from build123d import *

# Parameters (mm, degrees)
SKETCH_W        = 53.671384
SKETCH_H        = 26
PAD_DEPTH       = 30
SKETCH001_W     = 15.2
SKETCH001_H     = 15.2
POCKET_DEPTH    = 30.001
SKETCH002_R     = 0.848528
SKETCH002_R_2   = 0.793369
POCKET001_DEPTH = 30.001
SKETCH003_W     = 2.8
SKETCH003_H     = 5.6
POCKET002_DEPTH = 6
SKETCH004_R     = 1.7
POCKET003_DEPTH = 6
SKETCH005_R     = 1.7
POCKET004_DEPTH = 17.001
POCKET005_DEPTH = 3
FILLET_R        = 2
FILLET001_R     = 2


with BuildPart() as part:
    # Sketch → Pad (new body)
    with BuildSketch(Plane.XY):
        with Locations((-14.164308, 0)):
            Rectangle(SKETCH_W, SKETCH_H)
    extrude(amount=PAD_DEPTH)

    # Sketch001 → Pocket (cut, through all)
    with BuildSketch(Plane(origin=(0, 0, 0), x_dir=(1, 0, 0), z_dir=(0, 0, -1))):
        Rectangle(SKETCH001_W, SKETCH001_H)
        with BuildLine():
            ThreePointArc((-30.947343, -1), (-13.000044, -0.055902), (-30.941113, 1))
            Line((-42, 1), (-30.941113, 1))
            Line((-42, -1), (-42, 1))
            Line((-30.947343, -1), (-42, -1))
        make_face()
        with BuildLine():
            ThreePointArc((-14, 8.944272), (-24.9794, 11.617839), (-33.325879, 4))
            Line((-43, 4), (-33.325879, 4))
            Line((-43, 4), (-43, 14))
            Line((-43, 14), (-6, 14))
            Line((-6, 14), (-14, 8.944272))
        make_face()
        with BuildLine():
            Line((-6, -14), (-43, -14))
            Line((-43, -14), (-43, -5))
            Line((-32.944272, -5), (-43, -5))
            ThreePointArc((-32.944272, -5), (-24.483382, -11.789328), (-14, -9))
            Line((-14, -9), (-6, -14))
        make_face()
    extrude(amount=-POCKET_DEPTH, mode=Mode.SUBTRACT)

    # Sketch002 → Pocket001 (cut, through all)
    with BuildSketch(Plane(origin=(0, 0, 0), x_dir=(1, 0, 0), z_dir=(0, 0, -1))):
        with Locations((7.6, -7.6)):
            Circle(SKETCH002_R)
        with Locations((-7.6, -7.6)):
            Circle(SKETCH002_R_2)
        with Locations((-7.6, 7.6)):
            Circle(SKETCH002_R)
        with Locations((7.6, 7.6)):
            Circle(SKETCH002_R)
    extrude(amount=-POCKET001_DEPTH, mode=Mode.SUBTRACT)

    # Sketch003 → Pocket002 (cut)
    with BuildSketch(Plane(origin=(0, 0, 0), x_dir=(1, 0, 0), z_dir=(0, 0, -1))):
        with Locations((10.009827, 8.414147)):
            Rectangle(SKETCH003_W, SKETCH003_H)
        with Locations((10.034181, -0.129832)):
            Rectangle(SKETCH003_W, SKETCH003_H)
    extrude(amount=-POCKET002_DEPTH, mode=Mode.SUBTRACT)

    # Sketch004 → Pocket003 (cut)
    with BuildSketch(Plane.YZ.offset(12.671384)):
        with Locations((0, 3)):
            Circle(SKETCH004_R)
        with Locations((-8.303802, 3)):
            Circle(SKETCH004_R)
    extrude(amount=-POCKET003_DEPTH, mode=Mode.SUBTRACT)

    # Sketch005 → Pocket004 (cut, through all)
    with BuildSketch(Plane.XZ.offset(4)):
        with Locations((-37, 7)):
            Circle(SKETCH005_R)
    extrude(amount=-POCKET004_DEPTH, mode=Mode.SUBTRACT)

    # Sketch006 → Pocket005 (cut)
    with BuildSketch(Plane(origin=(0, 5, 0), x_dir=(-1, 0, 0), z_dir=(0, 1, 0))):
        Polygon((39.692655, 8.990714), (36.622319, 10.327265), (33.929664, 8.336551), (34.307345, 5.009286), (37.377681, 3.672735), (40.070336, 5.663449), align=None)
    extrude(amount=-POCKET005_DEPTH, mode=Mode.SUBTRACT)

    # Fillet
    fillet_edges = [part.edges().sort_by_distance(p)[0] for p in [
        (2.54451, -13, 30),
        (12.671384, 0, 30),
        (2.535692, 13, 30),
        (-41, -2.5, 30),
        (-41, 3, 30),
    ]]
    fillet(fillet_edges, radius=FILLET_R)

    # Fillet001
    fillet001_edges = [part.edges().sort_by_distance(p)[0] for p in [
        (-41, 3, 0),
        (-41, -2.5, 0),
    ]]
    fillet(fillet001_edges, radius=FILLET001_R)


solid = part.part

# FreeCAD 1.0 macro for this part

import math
import FreeCAD as App
import Part
import Sketcher
Q = App.Units.Quantity


def edges_at(feature, points):
    """Names of the edges that pass closest to the given points."""
    edges = feature.Shape.Edges
    near = lambda p: min(range(len(edges)), key=lambda i: edges[i].distToShape(Part.Vertex(*p))[0])
    return sorted({f"Edge{near(p) + 1}" for p in points})


def add_polygon(sketch, points):
    """Adds a closed chain of lines whose ends are joined by coincident constraints."""
    first, n = sketch.GeometryCount, len(points)
    for a, b in zip(points, points[1:] + points[:1]):
        sketch.addGeometry(Part.LineSegment(App.Vector(*a, 0), App.Vector(*b, 0)), False)
    for i in range(n):
        sketch.addConstraint(Sketcher.Constraint("Coincident", first + i, 2, first + (i + 1) % n, 1))

doc = App.newDocument("Part")
body = doc.addObject("PartDesign::Body", "Body")

sketch1 = doc.addObject("Sketcher::SketchObject", "Sketch")
body.addObject(sketch1)
sketch1.AttachmentSupport = (doc.XY_Plane, [""])
sketch1.MapMode = "FlatFace"
add_polygon(sketch1, [(-41, 13), (-41, -13), (13, -13), (13, 13)])
sketch1.addConstraint(Sketcher.Constraint("Vertical", 0))
sketch1.addConstraint(Sketcher.Constraint("Horizontal", 1))
sketch1.addConstraint(Sketcher.Constraint("Vertical", 2))
sketch1.addConstraint(Sketcher.Constraint("Horizontal", 3))
sketch1.addConstraint(Sketcher.Constraint("DistanceY", 0, 2, 0, 1, Q("26 mm")))
sketch1.addConstraint(Sketcher.Constraint("DistanceX", 0, 2, -1, 1, Q("41 mm")))
sketch1.addConstraint(Sketcher.Constraint("DistanceY", 0, 2, -1, 1, Q("13 mm")))
sketch1.addConstraint(Sketcher.Constraint("DistanceX", 1, 1, 1, 2, Q("53.671384 mm")))
pad1 = doc.addObject("PartDesign::Pad", "Pad")
body.addObject(pad1)
pad1.Profile = sketch1
pad1.Length = 30

sketch2 = doc.addObject("Sketcher::SketchObject", "Sketch001")
body.addObject(sketch2)
sketch2.AttachmentSupport = (doc.XY_Plane, [""])
sketch2.MapMode = "FlatFace"
add_polygon(sketch2, [(-7.6, -7.6), (-7.6, 7.6), (7.6, 7.6), (7.6, -7.6)])
sketch2.addGeometry(Part.ArcOfCircle(Part.Circle(App.Vector(-22, 0, 0), App.Vector(0, 0, 1), 9), math.radians(-173), math.radians(174)), False)
sketch2.addGeometry(Part.LineSegment(App.Vector(-30.9, -1, 0), App.Vector(-42, -1, 0)), False)
sketch2.addGeometry(Part.LineSegment(App.Vector(-42, -1, 0), App.Vector(-42, 1, 0)), False)
sketch2.addGeometry(Part.LineSegment(App.Vector(-42, 1, 0), App.Vector(-30.9, 1, 0)), False)
sketch2.addGeometry(Part.ArcOfCircle(Part.Circle(App.Vector(-22, 0, 0), App.Vector(0, 0, 1), 12), math.radians(-160), math.radians(-48)), False)
sketch2.addGeometry(Part.LineSegment(App.Vector(-14, -8.9, 0), App.Vector(-6, -14, 0)), False)
sketch2.addGeometry(Part.LineSegment(App.Vector(-6, -14, 0), App.Vector(-43, -14, 0)), False)
sketch2.addGeometry(Part.LineSegment(App.Vector(-43, -14, 0), App.Vector(-43, -4, 0)), False)
sketch2.addGeometry(Part.LineSegment(App.Vector(-43, -4, 0), App.Vector(-33.3, -4, 0)), False)
sketch2.addGeometry(Part.LineSegment(App.Vector(-43, 14, 0), App.Vector(-6, 14, 0)), False)
sketch2.addGeometry(Part.LineSegment(App.Vector(-6, 14, 0), App.Vector(-14, 9, 0)), False)
sketch2.addGeometry(Part.ArcOfCircle(Part.Circle(App.Vector(-22, 0, 0), App.Vector(0, 0, 1), 12), math.radians(48), math.radians(156)), False)
sketch2.addGeometry(Part.LineSegment(App.Vector(-32.9, 5, 0), App.Vector(-43, 5, 0)), False)
sketch2.addGeometry(Part.LineSegment(App.Vector(-43, 5, 0), App.Vector(-43, 14, 0)), False)
sketch2.addConstraint(Sketcher.Constraint("Coincident", 4, 1, 5, 1))
sketch2.addConstraint(Sketcher.Constraint("Coincident", 5, 2, 6, 1))
sketch2.addConstraint(Sketcher.Constraint("Coincident", 6, 2, 7, 1))
sketch2.addConstraint(Sketcher.Constraint("Coincident", 7, 2, 4, 2))
sketch2.addConstraint(Sketcher.Constraint("Coincident", 8, 2, 9, 1))
sketch2.addConstraint(Sketcher.Constraint("Coincident", 9, 2, 10, 1))
sketch2.addConstraint(Sketcher.Constraint("Coincident", 10, 2, 11, 1))
sketch2.addConstraint(Sketcher.Constraint("Coincident", 11, 2, 12, 1))
sketch2.addConstraint(Sketcher.Constraint("Coincident", 12, 2, 8, 1))
sketch2.addConstraint(Sketcher.Constraint("Coincident", 13, 2, 14, 1))
sketch2.addConstraint(Sketcher.Constraint("Coincident", 14, 2, 15, 1))
sketch2.addConstraint(Sketcher.Constraint("Coincident", 15, 2, 16, 1))
sketch2.addConstraint(Sketcher.Constraint("Coincident", 16, 2, 17, 1))
sketch2.addConstraint(Sketcher.Constraint("Coincident", 17, 2, 13, 1))
sketch2.addConstraint(Sketcher.Constraint("Vertical", 0))
sketch2.addConstraint(Sketcher.Constraint("Horizontal", 1))
sketch2.addConstraint(Sketcher.Constraint("Vertical", 2))
sketch2.addConstraint(Sketcher.Constraint("Horizontal", 3))
sketch2.addConstraint(Sketcher.Constraint("Horizontal", 5))
sketch2.addConstraint(Sketcher.Constraint("Vertical", 6))
sketch2.addConstraint(Sketcher.Constraint("Horizontal", 7))
sketch2.addConstraint(Sketcher.Constraint("Horizontal", 10))
sketch2.addConstraint(Sketcher.Constraint("Vertical", 11))
sketch2.addConstraint(Sketcher.Constraint("Horizontal", 12))
sketch2.addConstraint(Sketcher.Constraint("Horizontal", 13))
sketch2.addConstraint(Sketcher.Constraint("Horizontal", 16))
sketch2.addConstraint(Sketcher.Constraint("Vertical", 17))
sketch2.addConstraint(Sketcher.Constraint("Coincident", 8, 3, 4, 3))
sketch2.addConstraint(Sketcher.Constraint("Coincident", 15, 3, 4, 3))
sketch2.addConstraint(Sketcher.Constraint("Equal", 8, 15))
sketch2.addConstraint(Sketcher.Constraint("Symmetric", 0, 2, 2, 2, -1, 1))
sketch2.addConstraint(Sketcher.Constraint("Symmetric", 9, 2, 13, 2, -1))
sketch2.addConstraint(Sketcher.Constraint("Vertical", 8, 2, 14, 2))
sketch2.addConstraint(Sketcher.Constraint("Vertical", 11, 2, 16, 2))
sketch2.addConstraint(Sketcher.Constraint("Equal", 3, 0))
sketch2.addConstraint(Sketcher.Constraint("Radius", 4, Q("9 mm")))
sketch2.addConstraint(Sketcher.Constraint("DistanceX", 10, 2, 10, 1, Q("37 mm")))
sketch2.addConstraint(Sketcher.Constraint("DistanceY", 6, 1, 6, 2, Q("2 mm")))
sketch2.addConstraint(Sketcher.Constraint("DistanceY", 11, 1, 11, 2, Q("10 mm")))
sketch2.addConstraint(Sketcher.Constraint("DistanceY", 17, 1, 17, 2, Q("9 mm")))
sketch2.addConstraint(Sketcher.Constraint("DistanceX", 1, 1, 1, 2, Q("15.2 mm")))
sketch2.addConstraint(Sketcher.Constraint("DistanceX", 4, 3, -1, 1, Q("22 mm")))
sketch2.addConstraint(Sketcher.Constraint("DistanceY", 4, 1, -1, 1, Q("1 mm")))
sketch2.addConstraint(Sketcher.Constraint("DistanceX", 5, 2, -1, 1, Q("42 mm")))
sketch2.addConstraint(Sketcher.Constraint("DistanceX", 8, 2, -1, 1, Q("14 mm")))
sketch2.addConstraint(Sketcher.Constraint("DistanceX", 9, 2, -1, 1, Q("6 mm")))
sketch2.addConstraint(Sketcher.Constraint("DistanceY", 9, 2, -1, 1, Q("14 mm")))
sketch2.addConstraint(Sketcher.Constraint("DistanceY", -1, 1, 14, 2, Q("9 mm")))
sketch2.addConstraint(Sketcher.Constraint("Radius", 8, Q("12.020783 mm")))
pocket1 = doc.addObject("PartDesign::Pocket", "Pocket")
body.addObject(pocket1)
pocket1.Profile = sketch2
pocket1.Type = "ThroughAll"
pocket1.Reversed = True

sketch3 = doc.addObject("Sketcher::SketchObject", "Sketch002")
body.addObject(sketch3)
sketch3.AttachmentSupport = (doc.XY_Plane, [""])
sketch3.MapMode = "FlatFace"
sketch3.addGeometry(Part.Circle(App.Vector(7.6, 7.6, 0), App.Vector(0, 0, 1), 0.8), False)
sketch3.addGeometry(Part.Circle(App.Vector(-7.6, 7.6, 0), App.Vector(0, 0, 1), 0.8), False)
sketch3.addGeometry(Part.Circle(App.Vector(-7.6, -7.6, 0), App.Vector(0, 0, 1), 0.8), False)
sketch3.addGeometry(Part.Circle(App.Vector(7.6, -7.6, 0), App.Vector(0, 0, 1), 0.8), False)
sketch3.addConstraint(Sketcher.Constraint("Equal", 0, 2))
sketch3.addConstraint(Sketcher.Constraint("Equal", 2, 3))
sketch3.addConstraint(Sketcher.Constraint("Symmetric", 0, 3, 2, 3, -1, 1))
sketch3.addConstraint(Sketcher.Constraint("Symmetric", 1, 3, 3, 3, -1, 1))
sketch3.addConstraint(Sketcher.Constraint("Symmetric", 0, 3, 1, 3, -2))
sketch3.addConstraint(Sketcher.Constraint("DistanceX", -1, 1, 0, 3, Q("7.6 mm")))
sketch3.addConstraint(Sketcher.Constraint("DistanceY", -1, 1, 0, 3, Q("7.6 mm")))
sketch3.addConstraint(Sketcher.Constraint("Diameter", 0, Q("1.697056 mm")))
sketch3.addConstraint(Sketcher.Constraint("Diameter", 1, Q("1.586738 mm")))
pocket2 = doc.addObject("PartDesign::Pocket", "Pocket001")
body.addObject(pocket2)
pocket2.Profile = sketch3
pocket2.Type = "ThroughAll"
pocket2.Reversed = True

sketch4 = doc.addObject("Sketcher::SketchObject", "Sketch003")
body.addObject(sketch4)
sketch4.AttachmentSupport = (doc.XY_Plane, [""])
sketch4.MapMode = "FlatFace"
add_polygon(sketch4, [(8.6, -11.2), (8.6, -5.6), (11.4, -5.6), (11.4, -11.2)])
add_polygon(sketch4, [(8.6, -2.7), (8.6, 2.9), (11.4, 2.9), (11.4, -2.7)])
sketch4.addConstraint(Sketcher.Constraint("Vertical", 0))
sketch4.addConstraint(Sketcher.Constraint("Horizontal", 1))
sketch4.addConstraint(Sketcher.Constraint("Vertical", 2))
sketch4.addConstraint(Sketcher.Constraint("Horizontal", 3))
sketch4.addConstraint(Sketcher.Constraint("Vertical", 4))
sketch4.addConstraint(Sketcher.Constraint("Horizontal", 5))
sketch4.addConstraint(Sketcher.Constraint("Vertical", 6))
sketch4.addConstraint(Sketcher.Constraint("Horizontal", 7))
sketch4.addConstraint(Sketcher.Constraint("Equal", 3, 5))
sketch4.addConstraint(Sketcher.Constraint("Equal", 2, 4))
sketch4.addConstraint(Sketcher.Constraint("DistanceX", 1, 1, 1, 2, Q("2.8 mm")))
sketch4.addConstraint(Sketcher.Constraint("DistanceY", 0, 1, 0, 2, Q("5.6 mm")))
sketch4.addConstraint(Sketcher.Constraint("DistanceX", -1, 1, 4, 2, Q("8.634181 mm")))
sketch4.addConstraint(Sketcher.Constraint("DistanceY", 0, 2, 4, 2, Q("8.543979 mm")))
sketch4.addConstraint(Sketcher.Constraint("DistanceX", -1, 1, 0, 2, Q("8.609827 mm")))
sketch4.addConstraint(Sketcher.Constraint("DistanceY", 0, 2, -1, 1, Q("5.614147 mm")))
pocket3 = doc.addObject("PartDesign::Pocket", "Pocket002")
body.addObject(pocket3)
pocket3.Profile = sketch4
pocket3.Length = 6
pocket3.Reversed = True

sketch5 = doc.addObject("Sketcher::SketchObject", "Sketch004")
body.addObject(sketch5)
sketch5.AttachmentSupport = (doc.YZ_Plane, [""])
sketch5.MapMode = "FlatFace"
sketch5.AttachmentOffset = App.Placement(App.Vector(0, 0, 12.671384), App.Rotation())
sketch5.addGeometry(Part.Circle(App.Vector(0, 3, 0), App.Vector(0, 0, 1), 1.7), False)
sketch5.addGeometry(Part.Circle(App.Vector(-8.3, 3, 0), App.Vector(0, 0, 1), 1.7), False)
sketch5.addConstraint(Sketcher.Constraint("Equal", 0, 1))
sketch5.addConstraint(Sketcher.Constraint("PointOnObject", 0, 3, -2))
sketch5.addConstraint(Sketcher.Constraint("Horizontal", 0, 3, 1, 3))
sketch5.addConstraint(Sketcher.Constraint("Diameter", 0, Q("3.4 mm")))
sketch5.addConstraint(Sketcher.Constraint("DistanceY", -1, 1, 0, 3, Q("3 mm")))
sketch5.addConstraint(Sketcher.Constraint("DistanceX", 1, 3, -1, 1, Q("8.303802 mm")))
pocket4 = doc.addObject("PartDesign::Pocket", "Pocket003")
body.addObject(pocket4)
pocket4.Profile = sketch5
pocket4.Length = 6

sketch6 = doc.addObject("Sketcher::SketchObject", "Sketch005")
body.addObject(sketch6)
sketch6.AttachmentSupport = (doc.XZ_Plane, [""])
sketch6.MapMode = "FlatFace"
sketch6.AttachmentOffset = App.Placement(App.Vector(0, 0, 4), App.Rotation())
sketch6.addGeometry(Part.Circle(App.Vector(-37, 7, 0), App.Vector(0, 0, 1), 1.7), False)
sketch6.addConstraint(Sketcher.Constraint("Diameter", 0, Q("3.4 mm")))
sketch6.addConstraint(Sketcher.Constraint("DistanceX", 0, 3, -1, 1, Q("37 mm")))
sketch6.addConstraint(Sketcher.Constraint("DistanceY", -1, 1, 0, 3, Q("7 mm")))
pocket5 = doc.addObject("PartDesign::Pocket", "Pocket004")
body.addObject(pocket5)
pocket5.Profile = sketch6
pocket5.Type = "ThroughAll"

sketch7 = doc.addObject("Sketcher::SketchObject", "Sketch006")
body.addObject(sketch7)
sketch7.AttachmentSupport = (doc.XZ_Plane, [""])
sketch7.MapMode = "FlatFace"
sketch7.AttachmentOffset = App.Placement(App.Vector(0, 0, -5), App.Rotation())
add_polygon(sketch7, [(-39.7, 9), (-36.6, 10.3), (-33.9, 8.3), (-34.3, 5), (-37.4, 3.7), (-40.1, 5.7)])
sketch7.addConstraint(Sketcher.Constraint("Parallel", 0, 3))
sketch7.addConstraint(Sketcher.Constraint("Parallel", 1, 4))
sketch7.addConstraint(Sketcher.Constraint("Parallel", 2, 5))
sketch7.addConstraint(Sketcher.Constraint("Equal", 0, 1))
sketch7.addConstraint(Sketcher.Constraint("Equal", 1, 2))
sketch7.addConstraint(Sketcher.Constraint("Equal", 2, 3))
sketch7.addConstraint(Sketcher.Constraint("Distance", 0, Q("3.348631 mm")))
sketch7.addConstraint(Sketcher.Constraint("DistanceX", 0, 2, -1, 1, Q("36.622319 mm")))
sketch7.addConstraint(Sketcher.Constraint("DistanceY", -1, 1, 1, 2, Q("8.336551 mm")))
sketch7.addConstraint(Sketcher.Constraint("DistanceX", 3, 2, -1, 1, Q("37.377681 mm")))
sketch7.addConstraint(Sketcher.Constraint("DistanceY", -1, 1, 4, 2, Q("5.663449 mm")))
sketch7.addConstraint(Sketcher.Constraint("DistanceX", 2, 2, 1, 2, Q("0.377681 mm")))
pocket6 = doc.addObject("PartDesign::Pocket", "Pocket005")
body.addObject(pocket6)
pocket6.Profile = sketch7
pocket6.Length = 3
pocket6.Reversed = True
doc.recompute()

fillet = doc.addObject("PartDesign::Fillet", "Fillet")
body.addObject(fillet)
fillet.Base = (pocket6, edges_at(pocket6, [
    (2.545, -13, 30),
    (12.671, 0, 30),
    (2.536, 13, 30),
    (-41, -2.5, 30),
    (-41, 3, 30),
]))
fillet.Radius = 2
doc.recompute()

fillet2 = doc.addObject("PartDesign::Fillet", "Fillet001")
body.addObject(fillet2)
fillet2.Base = (fillet, edges_at(fillet, [(-41, 3, 0), (-41, -2.5, 0)]))
fillet2.Radius = 2

doc.recompute()
